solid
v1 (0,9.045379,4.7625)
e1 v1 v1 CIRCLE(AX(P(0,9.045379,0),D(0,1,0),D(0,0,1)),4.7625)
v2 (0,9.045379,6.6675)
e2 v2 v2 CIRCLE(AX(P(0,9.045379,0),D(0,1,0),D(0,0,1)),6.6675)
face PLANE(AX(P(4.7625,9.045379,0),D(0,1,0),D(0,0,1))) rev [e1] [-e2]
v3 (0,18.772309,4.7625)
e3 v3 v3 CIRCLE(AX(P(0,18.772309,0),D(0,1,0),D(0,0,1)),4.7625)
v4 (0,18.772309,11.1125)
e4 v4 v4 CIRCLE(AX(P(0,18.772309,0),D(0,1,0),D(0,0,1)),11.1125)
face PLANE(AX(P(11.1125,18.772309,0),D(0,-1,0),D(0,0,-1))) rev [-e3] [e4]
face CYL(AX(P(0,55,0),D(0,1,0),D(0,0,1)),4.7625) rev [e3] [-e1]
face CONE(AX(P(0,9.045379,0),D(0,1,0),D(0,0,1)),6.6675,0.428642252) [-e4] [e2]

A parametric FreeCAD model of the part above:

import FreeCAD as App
import Part
import Sketcher
Q = App.Units.Quantity


def add_polygon(sketch, points):
    """Adds a closed chain of lines whose ends are joined by coincident constraints."""
    first, n = sketch.GeometryCount, len(points)
    for a, b in zip(points, points[1:] + points[:1]):
        sketch.addGeometry(Part.LineSegment(App.Vector(*a, 0), App.Vector(*b, 0)), False)
    for i in range(n):
        sketch.addConstraint(Sketcher.Constraint("Coincident", first + i, 2, first + (i + 1) % n, 1))

doc = App.newDocument("Part")
body = doc.addObject("PartDesign::Body", "Body")

# Sketch on XY plane
sketch1 = body.newObject("Sketcher::SketchObject", "Sketch")
sketch1.AttachmentSupport = (doc.getObject("XY_Plane"), [""])
sketch1.MapMode = "FlatFace"
add_polygon(sketch1, [(4.8, 18.8), (4.8, 9), (6.7, 9), (11.1, 18.8)])  # lines 0-3
sketch1.addConstraint([
    Sketcher.Constraint("Vertical", 0),
    Sketcher.Constraint("Horizontal", 1),
    Sketcher.Constraint("Horizontal", 3),
    Sketcher.Constraint("DistanceX", 3, 2, 3, 1, Q("0.25 in")),
    Sketcher.Constraint("DistanceX", 1, 1, 1, 2, Q("0.075 in")),
    Sketcher.Constraint("DistanceX", -1, 1, 0, 2, Q("0.1875 in")),
    Sketcher.Constraint("DistanceY", 0, 2, 0, 1, 9.72693),
    Sketcher.Constraint("DistanceY", -1, 1, 0, 2, 9.045379),
])
revolution = body.newObject("PartDesign::Revolution", "Revolution")
revolution.Profile = sketch1
revolution.ReferenceAxis = (sketch1, ["V_Axis"])
revolution.Angle = 360

doc.recompute()
